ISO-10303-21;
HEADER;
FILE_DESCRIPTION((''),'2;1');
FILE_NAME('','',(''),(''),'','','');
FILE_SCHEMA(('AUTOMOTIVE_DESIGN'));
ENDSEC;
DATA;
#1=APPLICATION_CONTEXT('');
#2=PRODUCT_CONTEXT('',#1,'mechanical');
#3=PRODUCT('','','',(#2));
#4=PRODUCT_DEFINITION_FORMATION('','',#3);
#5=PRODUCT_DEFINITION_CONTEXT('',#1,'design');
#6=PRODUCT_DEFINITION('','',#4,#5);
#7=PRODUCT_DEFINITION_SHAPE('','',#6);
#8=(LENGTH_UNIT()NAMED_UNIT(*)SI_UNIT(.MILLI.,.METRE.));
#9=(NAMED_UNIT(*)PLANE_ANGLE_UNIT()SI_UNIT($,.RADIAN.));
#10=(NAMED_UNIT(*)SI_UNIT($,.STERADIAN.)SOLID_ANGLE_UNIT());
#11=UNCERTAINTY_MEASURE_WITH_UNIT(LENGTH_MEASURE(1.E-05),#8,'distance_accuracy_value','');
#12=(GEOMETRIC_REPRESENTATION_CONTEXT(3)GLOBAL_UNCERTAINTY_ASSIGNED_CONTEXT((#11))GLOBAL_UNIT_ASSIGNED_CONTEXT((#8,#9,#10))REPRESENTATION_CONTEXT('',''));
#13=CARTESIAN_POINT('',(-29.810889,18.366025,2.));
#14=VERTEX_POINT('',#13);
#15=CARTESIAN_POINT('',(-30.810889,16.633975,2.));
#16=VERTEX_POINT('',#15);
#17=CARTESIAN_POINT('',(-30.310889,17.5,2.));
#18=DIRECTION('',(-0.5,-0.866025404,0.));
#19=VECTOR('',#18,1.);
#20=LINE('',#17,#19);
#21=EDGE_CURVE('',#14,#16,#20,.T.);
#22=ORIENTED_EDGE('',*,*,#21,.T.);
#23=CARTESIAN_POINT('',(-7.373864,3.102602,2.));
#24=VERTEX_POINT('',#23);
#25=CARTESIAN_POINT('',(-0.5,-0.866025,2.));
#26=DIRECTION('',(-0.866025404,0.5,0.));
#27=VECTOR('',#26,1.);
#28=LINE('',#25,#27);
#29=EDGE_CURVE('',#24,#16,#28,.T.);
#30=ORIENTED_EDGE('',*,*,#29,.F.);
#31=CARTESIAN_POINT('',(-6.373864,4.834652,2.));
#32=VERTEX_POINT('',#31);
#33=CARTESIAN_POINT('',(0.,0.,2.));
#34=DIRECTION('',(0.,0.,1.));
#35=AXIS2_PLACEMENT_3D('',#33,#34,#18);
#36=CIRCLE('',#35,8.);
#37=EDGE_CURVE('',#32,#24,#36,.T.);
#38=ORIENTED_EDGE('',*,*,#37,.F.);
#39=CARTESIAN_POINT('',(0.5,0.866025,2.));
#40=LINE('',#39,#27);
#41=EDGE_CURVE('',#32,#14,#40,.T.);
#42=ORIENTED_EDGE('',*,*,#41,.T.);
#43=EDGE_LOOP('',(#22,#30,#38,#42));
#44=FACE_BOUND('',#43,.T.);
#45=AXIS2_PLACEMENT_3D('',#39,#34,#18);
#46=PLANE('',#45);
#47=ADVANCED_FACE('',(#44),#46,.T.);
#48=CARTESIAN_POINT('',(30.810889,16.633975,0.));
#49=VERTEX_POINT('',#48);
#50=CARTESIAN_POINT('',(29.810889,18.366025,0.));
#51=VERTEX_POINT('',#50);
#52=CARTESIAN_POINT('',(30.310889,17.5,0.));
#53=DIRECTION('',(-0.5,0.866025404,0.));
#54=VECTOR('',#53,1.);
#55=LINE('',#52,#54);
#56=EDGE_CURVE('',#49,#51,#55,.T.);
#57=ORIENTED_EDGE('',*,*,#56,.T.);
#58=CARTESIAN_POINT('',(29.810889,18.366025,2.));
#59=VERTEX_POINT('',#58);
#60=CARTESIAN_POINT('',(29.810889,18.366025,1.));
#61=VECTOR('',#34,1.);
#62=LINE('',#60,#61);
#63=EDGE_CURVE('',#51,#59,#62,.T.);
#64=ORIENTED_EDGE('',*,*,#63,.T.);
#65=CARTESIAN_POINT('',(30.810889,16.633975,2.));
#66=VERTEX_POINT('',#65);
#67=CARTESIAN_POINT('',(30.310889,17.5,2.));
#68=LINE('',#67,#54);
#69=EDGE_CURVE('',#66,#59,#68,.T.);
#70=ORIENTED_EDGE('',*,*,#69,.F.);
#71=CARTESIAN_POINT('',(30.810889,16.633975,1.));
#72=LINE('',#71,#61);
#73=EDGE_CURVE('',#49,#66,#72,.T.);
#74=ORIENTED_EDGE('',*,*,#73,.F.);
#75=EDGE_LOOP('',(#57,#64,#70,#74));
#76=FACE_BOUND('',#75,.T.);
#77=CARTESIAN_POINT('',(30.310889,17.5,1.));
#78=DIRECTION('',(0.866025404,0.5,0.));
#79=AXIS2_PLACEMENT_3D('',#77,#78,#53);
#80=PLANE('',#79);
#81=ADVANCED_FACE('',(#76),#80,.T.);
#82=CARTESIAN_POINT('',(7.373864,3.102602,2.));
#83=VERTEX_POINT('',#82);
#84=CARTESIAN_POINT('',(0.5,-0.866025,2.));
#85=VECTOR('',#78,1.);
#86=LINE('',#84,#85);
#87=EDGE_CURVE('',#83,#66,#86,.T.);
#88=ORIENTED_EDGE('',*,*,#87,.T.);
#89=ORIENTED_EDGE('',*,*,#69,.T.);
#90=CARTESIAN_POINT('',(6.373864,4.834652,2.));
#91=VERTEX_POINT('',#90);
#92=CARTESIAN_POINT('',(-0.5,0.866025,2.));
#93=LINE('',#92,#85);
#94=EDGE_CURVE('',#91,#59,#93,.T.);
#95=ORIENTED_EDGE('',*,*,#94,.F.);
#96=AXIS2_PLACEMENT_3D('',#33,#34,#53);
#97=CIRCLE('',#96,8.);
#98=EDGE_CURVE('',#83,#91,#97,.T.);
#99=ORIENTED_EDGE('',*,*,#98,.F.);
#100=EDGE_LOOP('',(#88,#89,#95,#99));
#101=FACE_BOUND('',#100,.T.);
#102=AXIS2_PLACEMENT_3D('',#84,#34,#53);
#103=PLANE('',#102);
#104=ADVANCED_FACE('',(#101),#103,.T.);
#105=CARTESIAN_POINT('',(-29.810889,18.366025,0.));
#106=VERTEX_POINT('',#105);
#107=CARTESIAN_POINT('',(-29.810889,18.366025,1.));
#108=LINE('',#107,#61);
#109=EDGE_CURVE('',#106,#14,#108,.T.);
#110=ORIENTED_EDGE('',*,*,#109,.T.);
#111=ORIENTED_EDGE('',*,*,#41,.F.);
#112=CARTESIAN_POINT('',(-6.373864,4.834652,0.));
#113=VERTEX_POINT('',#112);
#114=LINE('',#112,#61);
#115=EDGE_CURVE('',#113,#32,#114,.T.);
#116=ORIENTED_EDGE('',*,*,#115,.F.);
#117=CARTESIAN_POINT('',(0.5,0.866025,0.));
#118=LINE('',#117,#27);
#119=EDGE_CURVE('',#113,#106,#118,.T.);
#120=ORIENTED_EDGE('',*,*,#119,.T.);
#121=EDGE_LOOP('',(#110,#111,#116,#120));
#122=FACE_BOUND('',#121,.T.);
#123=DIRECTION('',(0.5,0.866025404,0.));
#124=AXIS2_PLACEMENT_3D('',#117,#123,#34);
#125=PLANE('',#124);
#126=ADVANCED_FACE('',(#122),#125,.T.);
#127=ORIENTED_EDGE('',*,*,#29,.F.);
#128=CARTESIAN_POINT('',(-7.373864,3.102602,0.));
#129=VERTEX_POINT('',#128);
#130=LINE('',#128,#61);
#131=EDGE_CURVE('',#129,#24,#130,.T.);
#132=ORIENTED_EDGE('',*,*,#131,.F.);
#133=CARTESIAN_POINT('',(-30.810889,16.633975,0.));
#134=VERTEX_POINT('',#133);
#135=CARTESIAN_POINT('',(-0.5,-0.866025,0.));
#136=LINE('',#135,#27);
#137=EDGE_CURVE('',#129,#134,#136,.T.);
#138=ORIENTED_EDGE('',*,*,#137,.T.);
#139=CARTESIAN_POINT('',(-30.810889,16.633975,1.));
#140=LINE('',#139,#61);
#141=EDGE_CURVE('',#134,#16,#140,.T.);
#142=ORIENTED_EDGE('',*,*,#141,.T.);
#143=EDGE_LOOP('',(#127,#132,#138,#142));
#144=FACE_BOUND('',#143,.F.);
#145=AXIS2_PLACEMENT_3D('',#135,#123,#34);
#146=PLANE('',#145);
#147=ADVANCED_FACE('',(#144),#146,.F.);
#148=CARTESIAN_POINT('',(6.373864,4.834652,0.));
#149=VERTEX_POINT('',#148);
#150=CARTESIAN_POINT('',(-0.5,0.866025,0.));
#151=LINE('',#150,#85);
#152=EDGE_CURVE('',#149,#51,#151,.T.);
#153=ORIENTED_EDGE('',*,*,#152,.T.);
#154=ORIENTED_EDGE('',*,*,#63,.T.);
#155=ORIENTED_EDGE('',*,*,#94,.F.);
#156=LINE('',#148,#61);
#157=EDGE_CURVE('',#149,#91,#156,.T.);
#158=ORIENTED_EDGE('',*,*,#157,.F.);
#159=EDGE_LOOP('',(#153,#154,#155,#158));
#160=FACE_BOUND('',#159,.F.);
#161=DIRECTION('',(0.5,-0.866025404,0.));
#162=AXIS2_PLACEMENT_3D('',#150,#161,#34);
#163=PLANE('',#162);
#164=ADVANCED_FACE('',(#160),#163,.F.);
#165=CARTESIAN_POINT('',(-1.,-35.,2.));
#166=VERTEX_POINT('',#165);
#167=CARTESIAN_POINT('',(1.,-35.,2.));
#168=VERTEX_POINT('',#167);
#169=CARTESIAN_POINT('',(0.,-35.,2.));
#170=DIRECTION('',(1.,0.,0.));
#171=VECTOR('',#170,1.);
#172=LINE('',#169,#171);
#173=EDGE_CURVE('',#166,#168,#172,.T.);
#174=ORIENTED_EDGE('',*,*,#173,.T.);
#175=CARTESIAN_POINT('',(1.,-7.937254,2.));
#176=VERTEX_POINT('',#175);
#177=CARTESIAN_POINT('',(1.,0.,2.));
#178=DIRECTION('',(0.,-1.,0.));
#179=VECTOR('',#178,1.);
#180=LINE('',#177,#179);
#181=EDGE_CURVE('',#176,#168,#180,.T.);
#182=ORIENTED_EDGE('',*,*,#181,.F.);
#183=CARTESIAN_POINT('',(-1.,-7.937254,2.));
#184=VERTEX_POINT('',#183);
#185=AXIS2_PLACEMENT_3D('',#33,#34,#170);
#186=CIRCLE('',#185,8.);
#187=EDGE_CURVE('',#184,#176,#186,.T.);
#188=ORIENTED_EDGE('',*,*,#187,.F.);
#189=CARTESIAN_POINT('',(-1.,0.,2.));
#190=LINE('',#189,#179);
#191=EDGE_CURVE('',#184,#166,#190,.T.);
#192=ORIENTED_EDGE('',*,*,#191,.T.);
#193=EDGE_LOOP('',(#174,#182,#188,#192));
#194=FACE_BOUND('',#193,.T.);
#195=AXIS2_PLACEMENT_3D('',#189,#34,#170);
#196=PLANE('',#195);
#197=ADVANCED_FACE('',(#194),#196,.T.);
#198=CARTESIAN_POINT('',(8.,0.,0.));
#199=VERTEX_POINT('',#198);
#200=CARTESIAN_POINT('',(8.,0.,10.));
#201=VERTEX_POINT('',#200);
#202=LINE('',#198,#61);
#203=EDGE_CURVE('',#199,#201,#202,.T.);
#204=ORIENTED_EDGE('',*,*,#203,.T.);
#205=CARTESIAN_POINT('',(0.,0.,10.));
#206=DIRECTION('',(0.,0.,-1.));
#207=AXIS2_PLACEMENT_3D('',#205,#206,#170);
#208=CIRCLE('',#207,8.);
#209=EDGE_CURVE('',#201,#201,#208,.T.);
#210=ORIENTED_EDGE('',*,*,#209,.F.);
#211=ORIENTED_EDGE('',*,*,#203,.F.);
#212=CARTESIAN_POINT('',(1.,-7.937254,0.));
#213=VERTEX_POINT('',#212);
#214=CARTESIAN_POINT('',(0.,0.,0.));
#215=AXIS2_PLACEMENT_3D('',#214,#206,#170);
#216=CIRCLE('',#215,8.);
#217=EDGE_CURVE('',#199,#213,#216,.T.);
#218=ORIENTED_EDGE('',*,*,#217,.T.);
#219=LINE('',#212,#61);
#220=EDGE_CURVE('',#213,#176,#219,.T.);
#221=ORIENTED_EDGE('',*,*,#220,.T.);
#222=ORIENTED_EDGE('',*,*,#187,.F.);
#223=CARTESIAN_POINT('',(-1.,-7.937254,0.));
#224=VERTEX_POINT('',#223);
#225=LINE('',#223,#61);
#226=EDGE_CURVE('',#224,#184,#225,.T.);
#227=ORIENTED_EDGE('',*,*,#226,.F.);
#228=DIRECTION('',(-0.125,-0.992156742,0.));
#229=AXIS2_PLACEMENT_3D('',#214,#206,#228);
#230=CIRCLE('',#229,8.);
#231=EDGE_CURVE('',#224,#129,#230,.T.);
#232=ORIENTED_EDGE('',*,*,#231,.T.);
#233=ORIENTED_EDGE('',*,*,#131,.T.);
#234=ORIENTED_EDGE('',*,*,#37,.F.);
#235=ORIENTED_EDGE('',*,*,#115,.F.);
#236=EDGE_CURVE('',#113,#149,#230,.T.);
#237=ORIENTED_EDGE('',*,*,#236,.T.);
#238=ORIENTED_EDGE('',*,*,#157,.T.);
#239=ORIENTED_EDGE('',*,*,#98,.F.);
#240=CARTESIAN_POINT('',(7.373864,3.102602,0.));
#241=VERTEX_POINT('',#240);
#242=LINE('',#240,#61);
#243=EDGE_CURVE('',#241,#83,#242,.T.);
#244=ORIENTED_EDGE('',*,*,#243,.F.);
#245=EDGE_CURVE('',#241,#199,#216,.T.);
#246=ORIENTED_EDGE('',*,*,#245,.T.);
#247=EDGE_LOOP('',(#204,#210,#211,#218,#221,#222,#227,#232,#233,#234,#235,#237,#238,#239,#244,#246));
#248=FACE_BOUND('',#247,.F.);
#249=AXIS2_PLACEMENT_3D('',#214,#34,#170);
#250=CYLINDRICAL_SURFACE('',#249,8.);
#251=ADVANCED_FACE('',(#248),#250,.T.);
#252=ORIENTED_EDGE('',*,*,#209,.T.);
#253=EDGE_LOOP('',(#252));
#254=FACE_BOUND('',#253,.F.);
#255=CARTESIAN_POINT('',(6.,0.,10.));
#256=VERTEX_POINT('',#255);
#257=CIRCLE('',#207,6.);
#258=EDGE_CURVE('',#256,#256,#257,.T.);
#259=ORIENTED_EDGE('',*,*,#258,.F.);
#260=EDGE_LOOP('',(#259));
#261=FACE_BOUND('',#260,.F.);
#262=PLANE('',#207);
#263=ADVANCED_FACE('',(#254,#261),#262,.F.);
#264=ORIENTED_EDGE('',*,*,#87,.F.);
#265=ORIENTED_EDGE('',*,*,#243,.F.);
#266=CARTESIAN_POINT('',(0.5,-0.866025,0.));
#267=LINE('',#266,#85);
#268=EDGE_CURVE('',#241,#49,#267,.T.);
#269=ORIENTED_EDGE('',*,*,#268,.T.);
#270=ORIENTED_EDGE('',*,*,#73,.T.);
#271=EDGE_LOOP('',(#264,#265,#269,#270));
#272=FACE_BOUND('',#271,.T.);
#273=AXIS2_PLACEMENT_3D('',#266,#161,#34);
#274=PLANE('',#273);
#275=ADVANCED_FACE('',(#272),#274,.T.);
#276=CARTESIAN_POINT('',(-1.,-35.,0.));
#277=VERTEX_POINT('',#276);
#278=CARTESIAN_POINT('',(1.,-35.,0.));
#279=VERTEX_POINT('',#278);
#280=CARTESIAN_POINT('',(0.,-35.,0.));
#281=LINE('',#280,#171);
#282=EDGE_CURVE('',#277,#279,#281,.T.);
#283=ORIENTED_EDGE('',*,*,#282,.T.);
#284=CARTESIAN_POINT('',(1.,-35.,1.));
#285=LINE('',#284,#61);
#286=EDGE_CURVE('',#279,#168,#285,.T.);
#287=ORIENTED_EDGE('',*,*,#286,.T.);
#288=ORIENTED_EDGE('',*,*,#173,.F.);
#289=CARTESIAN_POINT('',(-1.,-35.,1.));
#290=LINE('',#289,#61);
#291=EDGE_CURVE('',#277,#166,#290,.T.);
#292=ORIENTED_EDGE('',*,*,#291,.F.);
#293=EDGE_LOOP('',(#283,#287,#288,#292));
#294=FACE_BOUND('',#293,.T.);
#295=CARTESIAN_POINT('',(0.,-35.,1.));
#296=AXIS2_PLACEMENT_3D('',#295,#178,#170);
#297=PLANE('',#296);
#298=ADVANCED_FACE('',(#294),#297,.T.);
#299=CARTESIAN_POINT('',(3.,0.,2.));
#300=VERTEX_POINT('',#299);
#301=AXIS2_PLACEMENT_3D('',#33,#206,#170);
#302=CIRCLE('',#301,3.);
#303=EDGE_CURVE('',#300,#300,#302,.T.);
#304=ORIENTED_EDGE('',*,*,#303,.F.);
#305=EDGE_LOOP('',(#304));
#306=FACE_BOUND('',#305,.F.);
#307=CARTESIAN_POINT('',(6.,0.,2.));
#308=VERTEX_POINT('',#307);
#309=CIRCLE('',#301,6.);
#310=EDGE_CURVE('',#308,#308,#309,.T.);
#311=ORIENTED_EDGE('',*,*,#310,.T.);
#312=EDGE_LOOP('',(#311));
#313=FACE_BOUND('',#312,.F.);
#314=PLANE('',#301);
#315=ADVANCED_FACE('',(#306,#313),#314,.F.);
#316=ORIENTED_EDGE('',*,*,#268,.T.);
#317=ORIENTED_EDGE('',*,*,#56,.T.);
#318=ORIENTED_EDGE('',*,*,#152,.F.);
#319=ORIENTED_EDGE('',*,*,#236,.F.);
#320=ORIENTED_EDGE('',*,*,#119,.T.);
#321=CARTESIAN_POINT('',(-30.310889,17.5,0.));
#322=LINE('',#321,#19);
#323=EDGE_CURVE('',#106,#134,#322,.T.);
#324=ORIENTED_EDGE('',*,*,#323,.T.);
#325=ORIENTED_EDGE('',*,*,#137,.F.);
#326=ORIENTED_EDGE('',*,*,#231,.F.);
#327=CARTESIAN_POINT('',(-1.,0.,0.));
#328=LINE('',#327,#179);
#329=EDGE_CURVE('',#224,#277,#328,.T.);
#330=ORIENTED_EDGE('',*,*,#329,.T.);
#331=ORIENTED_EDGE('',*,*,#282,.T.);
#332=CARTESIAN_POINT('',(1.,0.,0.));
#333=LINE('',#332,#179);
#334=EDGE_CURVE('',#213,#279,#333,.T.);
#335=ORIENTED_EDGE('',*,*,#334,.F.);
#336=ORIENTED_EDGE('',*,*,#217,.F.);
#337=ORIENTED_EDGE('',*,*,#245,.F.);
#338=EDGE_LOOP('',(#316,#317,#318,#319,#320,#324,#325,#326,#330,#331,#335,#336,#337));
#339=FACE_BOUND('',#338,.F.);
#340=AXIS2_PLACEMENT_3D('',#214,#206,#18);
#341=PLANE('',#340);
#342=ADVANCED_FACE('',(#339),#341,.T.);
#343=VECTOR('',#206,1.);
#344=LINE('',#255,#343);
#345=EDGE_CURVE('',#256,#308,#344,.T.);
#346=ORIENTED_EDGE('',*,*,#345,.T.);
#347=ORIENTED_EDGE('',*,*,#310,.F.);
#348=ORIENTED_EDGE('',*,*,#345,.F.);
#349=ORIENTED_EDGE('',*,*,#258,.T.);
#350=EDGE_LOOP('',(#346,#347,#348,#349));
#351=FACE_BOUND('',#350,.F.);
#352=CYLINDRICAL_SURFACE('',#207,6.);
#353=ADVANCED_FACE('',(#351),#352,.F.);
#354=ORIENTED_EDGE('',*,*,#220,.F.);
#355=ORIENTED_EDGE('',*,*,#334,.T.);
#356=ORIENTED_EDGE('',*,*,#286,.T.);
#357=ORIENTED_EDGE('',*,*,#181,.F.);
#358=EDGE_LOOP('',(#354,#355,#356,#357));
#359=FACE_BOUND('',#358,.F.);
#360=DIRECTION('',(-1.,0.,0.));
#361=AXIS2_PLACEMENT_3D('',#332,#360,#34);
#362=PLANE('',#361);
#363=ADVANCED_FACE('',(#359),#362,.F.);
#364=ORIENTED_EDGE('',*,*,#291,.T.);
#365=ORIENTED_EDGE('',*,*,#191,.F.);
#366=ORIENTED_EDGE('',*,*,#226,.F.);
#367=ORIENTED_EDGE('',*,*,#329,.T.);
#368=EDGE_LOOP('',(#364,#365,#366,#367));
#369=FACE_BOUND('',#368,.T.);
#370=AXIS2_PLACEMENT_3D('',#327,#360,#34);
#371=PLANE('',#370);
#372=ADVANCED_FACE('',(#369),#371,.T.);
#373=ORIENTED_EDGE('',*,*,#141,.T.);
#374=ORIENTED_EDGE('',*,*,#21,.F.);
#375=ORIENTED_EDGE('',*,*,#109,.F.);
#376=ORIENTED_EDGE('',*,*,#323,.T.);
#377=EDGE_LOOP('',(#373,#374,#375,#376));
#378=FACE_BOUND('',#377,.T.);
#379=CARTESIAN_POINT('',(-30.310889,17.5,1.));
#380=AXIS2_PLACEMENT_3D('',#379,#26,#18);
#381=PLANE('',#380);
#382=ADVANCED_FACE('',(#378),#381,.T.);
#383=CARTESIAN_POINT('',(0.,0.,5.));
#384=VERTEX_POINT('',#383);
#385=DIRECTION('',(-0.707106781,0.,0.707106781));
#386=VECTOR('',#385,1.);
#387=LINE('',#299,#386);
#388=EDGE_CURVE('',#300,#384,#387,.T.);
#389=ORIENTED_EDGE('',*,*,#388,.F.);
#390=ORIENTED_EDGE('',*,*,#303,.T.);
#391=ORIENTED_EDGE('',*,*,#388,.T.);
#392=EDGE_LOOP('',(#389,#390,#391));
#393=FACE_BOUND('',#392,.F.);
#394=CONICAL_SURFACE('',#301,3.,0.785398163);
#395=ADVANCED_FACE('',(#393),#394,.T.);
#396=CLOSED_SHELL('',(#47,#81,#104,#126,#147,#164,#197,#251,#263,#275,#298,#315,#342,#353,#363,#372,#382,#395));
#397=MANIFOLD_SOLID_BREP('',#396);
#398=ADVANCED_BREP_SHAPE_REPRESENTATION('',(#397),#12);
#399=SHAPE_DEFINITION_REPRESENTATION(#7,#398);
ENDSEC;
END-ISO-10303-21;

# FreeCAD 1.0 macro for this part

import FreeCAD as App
import Part
import Sketcher
Q = App.Units.Quantity


def add_polygon(sketch, points):
    """Adds a closed chain of lines whose ends are joined by coincident constraints."""
    first, n = sketch.GeometryCount, len(points)
    for a, b in zip(points, points[1:] + points[:1]):
        sketch.addGeometry(Part.LineSegment(App.Vector(*a, 0), App.Vector(*b, 0)), False)
    for i in range(n):
        sketch.addConstraint(Sketcher.Constraint("Coincident", first + i, 2, first + (i + 1) % n, 1))

doc = App.newDocument("Part")
body = doc.addObject("PartDesign::Body", "Body")

# Sketch on XZ plane
sketch1 = doc.addObject("Sketcher::SketchObject", "Sketch")
body.addObject(sketch1)
sketch1.AttachmentSupport = (doc.XZ_Plane, [""])
sketch1.MapMode = "FlatFace"
add_polygon(sketch1, [(0, 5), (0, 0), (8, 0), (8, 10), (6, 10), (6, 2), (3, 2)])  # lines 0-6
sketch1.addConstraint([
    Sketcher.Constraint("Vertical", 0),
    Sketcher.Constraint("Horizontal", 1),
    Sketcher.Constraint("Vertical", 2),
    Sketcher.Constraint("Horizontal", 3),
    Sketcher.Constraint("Vertical", 4),
    Sketcher.Constraint("Horizontal", 5),
    Sketcher.Constraint("Coincident", 0, 2, -1, 1),
    Sketcher.Constraint("Equal", 1, 4),
    Sketcher.Constraint("DistanceX", 1, 1, 1, 2, Q("8 mm")),
    Sketcher.Constraint("DistanceX", 3, 2, 3, 1, Q("2 mm")),
    Sketcher.Constraint("DistanceX", 5, 2, 5, 1, Q("3 mm")),
    Sketcher.Constraint("DistanceY", 0, 2, 0, 1, Q("5 mm")),
    Sketcher.Constraint("DistanceY", 2, 1, 2, 2, Q("10 mm")),
])
revolution = doc.addObject("PartDesign::Revolution", "Revolution")
body.addObject(revolution)
revolution.Profile = sketch1
revolution.ReferenceAxis = (sketch1, ["V_Axis"])
revolution.Angle = 360

# Sketch on XZ plane
sketch2 = doc.addObject("Sketcher::SketchObject", "Sketch001")
body.addObject(sketch2)
sketch2.AttachmentSupport = (doc.XZ_Plane, [""])
sketch2.MapMode = "FlatFace"
add_polygon(sketch2, [(-1, 2), (-1, 0), (1, 0), (1, 2)])  # lines 0-3
sketch2.addConstraint([
    Sketcher.Constraint("Vertical", 0),
    Sketcher.Constraint("Horizontal", 1),
    Sketcher.Constraint("Vertical", 2),
    Sketcher.Constraint("Horizontal", 3),
    Sketcher.Constraint("Symmetric", 0, 2, 1, 2, -1, 1),
    Sketcher.Constraint("Equal", 3, 0),
    Sketcher.Constraint("DistanceX", 1, 1, 1, 2, Q("2 mm")),
])
pad1 = doc.addObject("PartDesign::Pad", "Pad")
body.addObject(pad1)
pad1.Profile = sketch2
pad1.Length = 35
body2 = doc.addObject("PartDesign::Body", "Body001")
doc.recompute()

body2.BaseFeature = body
doc.recompute()

body3 = doc.addObject("PartDesign::Body", "Body002")
body3.BaseFeature = body
body3.Placement = App.Placement(App.Vector(0, 0, 0), App.Rotation(App.Vector(0, 0, 1), 120))
boolean = doc.addObject("PartDesign::Boolean", "Boolean")
body2.addObject(boolean)
boolean.Type = "Fuse"
boolean.addObjects([body3])
doc.recompute()

body.Placement = App.Placement(App.Vector(0, 0, 0), App.Rotation(App.Vector(0, 0, 1), 240))
boolean2 = doc.addObject("PartDesign::Boolean", "Boolean001")
body2.addObject(boolean2)
boolean2.Type = "Fuse"
boolean2.addObjects([body])

doc.recompute()
